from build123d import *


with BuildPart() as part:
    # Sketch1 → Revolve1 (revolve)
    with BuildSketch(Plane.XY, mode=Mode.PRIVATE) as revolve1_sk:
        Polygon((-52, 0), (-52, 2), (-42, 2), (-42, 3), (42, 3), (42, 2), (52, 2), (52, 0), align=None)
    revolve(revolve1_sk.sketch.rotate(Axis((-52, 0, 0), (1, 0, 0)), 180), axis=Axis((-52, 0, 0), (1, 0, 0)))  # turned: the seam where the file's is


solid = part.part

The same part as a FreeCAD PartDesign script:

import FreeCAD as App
import Part
import Sketcher
Q = App.Units.Quantity

doc = App.newDocument("Part")
body = doc.addObject("PartDesign::Body", "Body")

sketch1 = body.newObject("Sketcher::SketchObject", "Sketch")
sketch1.AttachmentSupport = (doc.getObject("XY_Plane"), [""])
sketch1.MapMode = "FlatFace"
sketch1.addGeometry([
    Part.LineSegment(App.Vector(-52, 2, 0), App.Vector(-52, 0, 0)),
    Part.LineSegment(App.Vector(-52, 0, 0), App.Vector(52, 0, 0)),
    Part.LineSegment(App.Vector(52, 0, 0), App.Vector(52, 2, 0)),
    Part.LineSegment(App.Vector(52, 2, 0), App.Vector(42, 2, 0)),
    Part.LineSegment(App.Vector(42, 2, 0), App.Vector(42, 3, 0)),
    Part.LineSegment(App.Vector(42, 3, 0), App.Vector(-42, 3, 0)),
    Part.LineSegment(App.Vector(-42, 3, 0), App.Vector(-42, 2, 0)),
    Part.LineSegment(App.Vector(-42, 2, 0), App.Vector(-52, 2, 0)),
], False)
sketch1.addConstraint([
    Sketcher.Constraint("Coincident", 0, 2, 1, 1),
    Sketcher.Constraint("Coincident", 1, 2, 2, 1),
    Sketcher.Constraint("Coincident", 2, 2, 3, 1),
    Sketcher.Constraint("Coincident", 3, 2, 4, 1),
    Sketcher.Constraint("Coincident", 4, 2, 5, 1),
    Sketcher.Constraint("Coincident", 5, 2, 6, 1),
    Sketcher.Constraint("Coincident", 6, 2, 7, 1),
    Sketcher.Constraint("Coincident", 7, 2, 0, 1),
    Sketcher.Constraint("Vertical", 0),
    Sketcher.Constraint("Horizontal", 1),
    Sketcher.Constraint("Vertical", 2),
    Sketcher.Constraint("Horizontal", 3),
    Sketcher.Constraint("Vertical", 4),
    Sketcher.Constraint("Horizontal", 5),
    Sketcher.Constraint("Vertical", 6),
    Sketcher.Constraint("Horizontal", 7),
    Sketcher.Constraint("Symmetric", 0, 2, 1, 2, -1, 1),
    Sketcher.Constraint("Symmetric", 3, 2, 6, 2, -2),
    Sketcher.Constraint("DistanceX", 1, 1, 1, 2, Q("104 mm")),
    Sketcher.Constraint("DistanceX", 3, 2, 3, 1, Q("10 mm")),
    Sketcher.Constraint("DistanceY", 0, 2, 0, 1, Q("2 mm")),
    Sketcher.Constraint("DistanceY", 4, 1, 4, 2, Q("1 mm")),
])
revolution = body.newObject("PartDesign::Revolution", "Revolution")
revolution.Profile = sketch1
revolution.ReferenceAxis = (sketch1, ["H_Axis"])
revolution.Angle = 360

doc.recompute()
